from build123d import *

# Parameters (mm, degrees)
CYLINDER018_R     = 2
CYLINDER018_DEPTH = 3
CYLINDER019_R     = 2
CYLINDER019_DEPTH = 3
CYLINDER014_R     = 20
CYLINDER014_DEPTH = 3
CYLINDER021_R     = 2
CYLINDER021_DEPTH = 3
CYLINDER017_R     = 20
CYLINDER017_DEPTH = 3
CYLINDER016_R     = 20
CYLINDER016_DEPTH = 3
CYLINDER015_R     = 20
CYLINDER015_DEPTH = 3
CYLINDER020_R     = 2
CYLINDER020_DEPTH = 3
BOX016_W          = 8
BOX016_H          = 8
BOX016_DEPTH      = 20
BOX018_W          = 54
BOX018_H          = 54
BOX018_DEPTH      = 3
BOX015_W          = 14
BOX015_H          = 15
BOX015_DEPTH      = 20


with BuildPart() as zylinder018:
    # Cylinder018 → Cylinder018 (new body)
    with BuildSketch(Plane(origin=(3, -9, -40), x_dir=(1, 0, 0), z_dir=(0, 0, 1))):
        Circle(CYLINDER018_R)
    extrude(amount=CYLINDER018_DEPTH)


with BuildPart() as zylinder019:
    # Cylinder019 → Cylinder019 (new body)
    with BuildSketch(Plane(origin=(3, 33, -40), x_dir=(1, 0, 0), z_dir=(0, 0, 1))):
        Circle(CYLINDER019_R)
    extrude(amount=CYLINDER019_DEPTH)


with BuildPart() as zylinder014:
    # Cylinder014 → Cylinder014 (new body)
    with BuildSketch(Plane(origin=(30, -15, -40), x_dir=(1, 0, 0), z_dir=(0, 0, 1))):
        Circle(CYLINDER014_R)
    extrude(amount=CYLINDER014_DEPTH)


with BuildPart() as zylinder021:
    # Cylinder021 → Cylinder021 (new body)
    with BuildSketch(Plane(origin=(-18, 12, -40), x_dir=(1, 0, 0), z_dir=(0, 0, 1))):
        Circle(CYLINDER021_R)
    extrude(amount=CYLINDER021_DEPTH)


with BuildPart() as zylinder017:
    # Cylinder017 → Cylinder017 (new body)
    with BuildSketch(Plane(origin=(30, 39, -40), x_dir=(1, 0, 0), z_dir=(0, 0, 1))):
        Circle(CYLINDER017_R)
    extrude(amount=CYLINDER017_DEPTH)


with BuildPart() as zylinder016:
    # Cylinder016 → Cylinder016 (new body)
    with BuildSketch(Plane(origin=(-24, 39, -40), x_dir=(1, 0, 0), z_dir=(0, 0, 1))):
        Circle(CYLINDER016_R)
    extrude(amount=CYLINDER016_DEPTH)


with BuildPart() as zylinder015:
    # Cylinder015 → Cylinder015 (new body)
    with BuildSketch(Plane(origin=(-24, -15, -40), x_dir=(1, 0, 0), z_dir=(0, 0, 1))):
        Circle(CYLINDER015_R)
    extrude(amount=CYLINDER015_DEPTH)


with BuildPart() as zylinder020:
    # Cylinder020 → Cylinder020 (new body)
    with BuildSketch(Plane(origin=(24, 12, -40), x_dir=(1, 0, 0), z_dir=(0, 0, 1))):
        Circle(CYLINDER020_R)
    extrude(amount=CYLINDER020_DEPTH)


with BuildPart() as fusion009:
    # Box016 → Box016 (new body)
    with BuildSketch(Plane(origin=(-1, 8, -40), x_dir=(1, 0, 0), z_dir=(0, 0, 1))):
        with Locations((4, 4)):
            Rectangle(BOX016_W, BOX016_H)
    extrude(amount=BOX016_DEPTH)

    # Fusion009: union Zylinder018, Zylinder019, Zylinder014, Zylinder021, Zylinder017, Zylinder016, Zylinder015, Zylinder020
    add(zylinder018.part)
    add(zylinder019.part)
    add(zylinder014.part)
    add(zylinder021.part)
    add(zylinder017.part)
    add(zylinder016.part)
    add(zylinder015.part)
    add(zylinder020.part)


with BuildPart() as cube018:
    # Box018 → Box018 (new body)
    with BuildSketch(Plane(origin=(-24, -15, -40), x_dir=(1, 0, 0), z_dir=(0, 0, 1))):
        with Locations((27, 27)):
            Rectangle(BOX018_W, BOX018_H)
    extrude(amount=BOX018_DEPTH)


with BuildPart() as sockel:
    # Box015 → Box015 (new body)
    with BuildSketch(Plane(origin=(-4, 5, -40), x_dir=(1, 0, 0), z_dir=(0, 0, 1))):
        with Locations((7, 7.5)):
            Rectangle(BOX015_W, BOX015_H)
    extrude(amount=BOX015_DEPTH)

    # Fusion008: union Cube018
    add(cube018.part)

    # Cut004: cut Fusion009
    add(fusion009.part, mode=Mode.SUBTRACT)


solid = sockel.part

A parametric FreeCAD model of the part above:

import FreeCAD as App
import Part
import Sketcher
from FreeCAD import Vector

doc = App.newDocument("Part")
body = doc.addObject("PartDesign::Body", "Body")

sketch1 = doc.addObject("Sketcher::SketchObject", "Sketch")
body.addObject(sketch1)
sketch1.AttachmentSupport = (doc.XY_Plane, [""])
sketch1.MapMode = "FlatFace"
sketch1.AttachmentOffset = App.Placement(Vector(0, 0, -40), App.Rotation())
sketch1.addGeometry(Part.Circle(Vector(3, -9, 0), Vector(0, 0, 1), 2), False)
sketch1.addConstraint([
    Sketcher.Constraint("Diameter", 0, 4.0),
    Sketcher.Constraint("DistanceX", -1, 1, 0, 3, 3.0),
    Sketcher.Constraint("DistanceY", 0, 3, -1, 1, 9.0),
])
pad1 = doc.addObject("PartDesign::Pad", "Pad")
body.addObject(pad1)
pad1.Profile = sketch1
pad1.Length = 3
body2 = doc.addObject("PartDesign::Body", "Body001")

sketch2 = doc.addObject("Sketcher::SketchObject", "Sketch001")
body2.addObject(sketch2)
sketch2.AttachmentSupport = (doc.getObject("XY_Plane001"), [""])
sketch2.MapMode = "FlatFace"
sketch2.AttachmentOffset = App.Placement(Vector(0, 0, -40), App.Rotation())
sketch2.addGeometry(Part.Circle(Vector(3, 33, 0), Vector(0, 0, 1), 2), False)
sketch2.addConstraint([
    Sketcher.Constraint("Diameter", 0, 4.0),
    Sketcher.Constraint("DistanceX", -1, 1, 0, 3, 3.0),
    Sketcher.Constraint("DistanceY", -1, 1, 0, 3, 33.0),
])
pad2 = doc.addObject("PartDesign::Pad", "Pad001")
body2.addObject(pad2)
pad2.Profile = sketch2
pad2.Length = 3
body3 = doc.addObject("PartDesign::Body", "Body002")

sketch3 = doc.addObject("Sketcher::SketchObject", "Sketch002")
body3.addObject(sketch3)
sketch3.AttachmentSupport = (doc.getObject("XY_Plane002"), [""])
sketch3.MapMode = "FlatFace"
sketch3.AttachmentOffset = App.Placement(Vector(0, 0, -40), App.Rotation())
sketch3.addGeometry(Part.Circle(Vector(30, -15, 0), Vector(0, 0, 1), 20), False)
sketch3.addConstraint([
    Sketcher.Constraint("Diameter", 0, 40.0),
    Sketcher.Constraint("DistanceX", -1, 1, 0, 3, 30.0),
    Sketcher.Constraint("DistanceY", 0, 3, -1, 1, 15.0),
])
pad3 = doc.addObject("PartDesign::Pad", "Pad002")
body3.addObject(pad3)
pad3.Profile = sketch3
pad3.Length = 3
body4 = doc.addObject("PartDesign::Body", "Body003")

sketch4 = doc.addObject("Sketcher::SketchObject", "Sketch003")
body4.addObject(sketch4)
sketch4.AttachmentSupport = (doc.getObject("XY_Plane003"), [""])
sketch4.MapMode = "FlatFace"
sketch4.AttachmentOffset = App.Placement(Vector(0, 0, -40), App.Rotation())
sketch4.addGeometry(Part.Circle(Vector(-18, 12, 0), Vector(0, 0, 1), 2), False)
sketch4.addConstraint([
    Sketcher.Constraint("Diameter", 0, 4.0),
    Sketcher.Constraint("DistanceX", 0, 3, -1, 1, 18.0),
    Sketcher.Constraint("DistanceY", -1, 1, 0, 3, 12.0),
])
pad4 = doc.addObject("PartDesign::Pad", "Pad003")
body4.addObject(pad4)
pad4.Profile = sketch4
pad4.Length = 3
body5 = doc.addObject("PartDesign::Body", "Body004")

sketch5 = doc.addObject("Sketcher::SketchObject", "Sketch004")
body5.addObject(sketch5)
sketch5.AttachmentSupport = (doc.getObject("XY_Plane004"), [""])
sketch5.MapMode = "FlatFace"
sketch5.AttachmentOffset = App.Placement(Vector(0, 0, -40), App.Rotation())
sketch5.addGeometry(Part.Circle(Vector(30, 39, 0), Vector(0, 0, 1), 20), False)
sketch5.addConstraint([
    Sketcher.Constraint("Diameter", 0, 40.0),
    Sketcher.Constraint("DistanceX", -1, 1, 0, 3, 30.0),
    Sketcher.Constraint("DistanceY", -1, 1, 0, 3, 39.0),
])
pad5 = doc.addObject("PartDesign::Pad", "Pad004")
body5.addObject(pad5)
pad5.Profile = sketch5
pad5.Length = 3
body6 = doc.addObject("PartDesign::Body", "Body005")

sketch6 = doc.addObject("Sketcher::SketchObject", "Sketch005")
body6.addObject(sketch6)
sketch6.AttachmentSupport = (doc.getObject("XY_Plane005"), [""])
sketch6.MapMode = "FlatFace"
sketch6.AttachmentOffset = App.Placement(Vector(0, 0, -40), App.Rotation())
sketch6.addGeometry(Part.Circle(Vector(-24, 39, 0), Vector(0, 0, 1), 20), False)
sketch6.addConstraint([
    Sketcher.Constraint("Diameter", 0, 40.0),
    Sketcher.Constraint("DistanceX", 0, 3, -1, 1, 24.0),
    Sketcher.Constraint("DistanceY", -1, 1, 0, 3, 39.0),
])
pad6 = doc.addObject("PartDesign::Pad", "Pad005")
body6.addObject(pad6)
pad6.Profile = sketch6
pad6.Length = 3
body7 = doc.addObject("PartDesign::Body", "Body006")

sketch7 = doc.addObject("Sketcher::SketchObject", "Sketch006")
body7.addObject(sketch7)
sketch7.AttachmentSupport = (doc.getObject("XY_Plane006"), [""])
sketch7.MapMode = "FlatFace"
sketch7.AttachmentOffset = App.Placement(Vector(0, 0, -40), App.Rotation())
sketch7.addGeometry(Part.Circle(Vector(-24, -15, 0), Vector(0, 0, 1), 20), False)
sketch7.addConstraint([
    Sketcher.Constraint("Diameter", 0, 40.0),
    Sketcher.Constraint("DistanceX", 0, 3, -1, 1, 24.0),
    Sketcher.Constraint("DistanceY", 0, 3, -1, 1, 15.0),
])
pad7 = doc.addObject("PartDesign::Pad", "Pad006")
body7.addObject(pad7)
pad7.Profile = sketch7
pad7.Length = 3
body8 = doc.addObject("PartDesign::Body", "Body007")

sketch8 = doc.addObject("Sketcher::SketchObject", "Sketch007")
body8.addObject(sketch8)
sketch8.AttachmentSupport = (doc.getObject("XY_Plane007"), [""])
sketch8.MapMode = "FlatFace"
sketch8.AttachmentOffset = App.Placement(Vector(0, 0, -40), App.Rotation())
sketch8.addGeometry(Part.Circle(Vector(24, 12, 0), Vector(0, 0, 1), 2), False)
sketch8.addConstraint([
    Sketcher.Constraint("Diameter", 0, 4.0),
    Sketcher.Constraint("DistanceX", -1, 1, 0, 3, 24.0),
    Sketcher.Constraint("DistanceY", -1, 1, 0, 3, 12.0),
])
pad8 = doc.addObject("PartDesign::Pad", "Pad007")
body8.addObject(pad8)
pad8.Profile = sketch8
pad8.Length = 3
body9 = doc.addObject("PartDesign::Body", "Body008")
body9.AllowCompound = True

sketch9 = doc.addObject("Sketcher::SketchObject", "Sketch008")
body9.addObject(sketch9)
sketch9.AttachmentSupport = (doc.getObject("XY_Plane008"), [""])
sketch9.MapMode = "FlatFace"
sketch9.AttachmentOffset = App.Placement(Vector(0, 0, -40), App.Rotation())
sketch9.addGeometry([
    Part.LineSegment(Vector(-1, 16, 0), Vector(-1, 8, 0)),
    Part.LineSegment(Vector(-1, 8, 0), Vector(7, 8, 0)),
    Part.LineSegment(Vector(7, 8, 0), Vector(7, 16, 0)),
    Part.LineSegment(Vector(7, 16, 0), Vector(-1, 16, 0)),
], False)
sketch9.addConstraint([
    Sketcher.Constraint("Coincident", 0, 2, 1, 1),
    Sketcher.Constraint("Coincident", 1, 2, 2, 1),
    Sketcher.Constraint("Coincident", 2, 2, 3, 1),
    Sketcher.Constraint("Coincident", 3, 2, 0, 1),
    Sketcher.Constraint("Vertical", 0),
    Sketcher.Constraint("Horizontal", 1),
    Sketcher.Constraint("Vertical", 2),
    Sketcher.Constraint("Horizontal", 3),
    Sketcher.Constraint("Equal", 3, 0),
    Sketcher.Constraint("DistanceX", 1, 1, 1, 2, 8.0),
    Sketcher.Constraint("DistanceX", 0, 2, -1, 1, 1.0),
    Sketcher.Constraint("DistanceY", -1, 1, 0, 2, 8.0),
])
pad9 = doc.addObject("PartDesign::Pad", "Pad008")
body9.addObject(pad9)
pad9.Profile = sketch9
pad9.Length = 20
doc.recompute()

boolean = doc.addObject("PartDesign::Boolean", "Boolean")
body9.addObject(boolean)
boolean.Type = "Fuse"
boolean.addObjects([body])
doc.recompute()

boolean2 = doc.addObject("PartDesign::Boolean", "Boolean001")
body9.addObject(boolean2)
boolean2.Type = "Fuse"
boolean2.addObjects([body2])
doc.recompute()

boolean3 = doc.addObject("PartDesign::Boolean", "Boolean002")
body9.addObject(boolean3)
boolean3.Type = "Fuse"
boolean3.addObjects([body3])
doc.recompute()

boolean4 = doc.addObject("PartDesign::Boolean", "Boolean003")
body9.addObject(boolean4)
boolean4.Type = "Fuse"
boolean4.addObjects([body4])
doc.recompute()

boolean5 = doc.addObject("PartDesign::Boolean", "Boolean004")
body9.addObject(boolean5)
boolean5.Type = "Fuse"
boolean5.addObjects([body5])
doc.recompute()

boolean6 = doc.addObject("PartDesign::Boolean", "Boolean005")
body9.addObject(boolean6)
boolean6.Type = "Fuse"
boolean6.addObjects([body6])
doc.recompute()

boolean7 = doc.addObject("PartDesign::Boolean", "Boolean006")
body9.addObject(boolean7)
boolean7.Type = "Fuse"
boolean7.addObjects([body7])
doc.recompute()

boolean8 = doc.addObject("PartDesign::Boolean", "Boolean007")
body9.addObject(boolean8)
boolean8.Type = "Fuse"
boolean8.addObjects([body8])
body10 = doc.addObject("PartDesign::Body", "Body009")

sketch10 = doc.addObject("Sketcher::SketchObject", "Sketch009")
body10.addObject(sketch10)
sketch10.AttachmentSupport = (doc.getObject("XY_Plane009"), [""])
sketch10.MapMode = "FlatFace"
sketch10.AttachmentOffset = App.Placement(Vector(0, 0, -40), App.Rotation())
sketch10.addGeometry([
    Part.LineSegment(Vector(-24, 39, 0), Vector(-24, -15, 0)),
    Part.LineSegment(Vector(-24, -15, 0), Vector(30, -15, 0)),
    Part.LineSegment(Vector(30, -15, 0), Vector(30, 39, 0)),
    Part.LineSegment(Vector(30, 39, 0), Vector(-24, 39, 0)),
], False)
sketch10.addConstraint([
    Sketcher.Constraint("Coincident", 0, 2, 1, 1),
    Sketcher.Constraint("Coincident", 1, 2, 2, 1),
    Sketcher.Constraint("Coincident", 2, 2, 3, 1),
    Sketcher.Constraint("Coincident", 3, 2, 0, 1),
    Sketcher.Constraint("Vertical", 0),
    Sketcher.Constraint("Horizontal", 1),
    Sketcher.Constraint("Vertical", 2),
    Sketcher.Constraint("Horizontal", 3),
    Sketcher.Constraint("Equal", 3, 0),
    Sketcher.Constraint("DistanceX", 1, 1, 1, 2, 54.0),
    Sketcher.Constraint("DistanceX", 0, 2, -1, 1, 24.0),
    Sketcher.Constraint("DistanceY", 0, 2, -1, 1, 15.0),
])
pad10 = doc.addObject("PartDesign::Pad", "Pad009")
body10.addObject(pad10)
pad10.Profile = sketch10
pad10.Length = 3
body11 = doc.addObject("PartDesign::Body", "Body010")

sketch11 = doc.addObject("Sketcher::SketchObject", "Sketch010")
body11.addObject(sketch11)
sketch11.AttachmentSupport = (doc.getObject("XY_Plane010"), [""])
sketch11.MapMode = "FlatFace"
sketch11.AttachmentOffset = App.Placement(Vector(0, 0, -40), App.Rotation())
sketch11.addGeometry([
    Part.LineSegment(Vector(-4, 20, 0), Vector(-4, 5, 0)),
    Part.LineSegment(Vector(-4, 5, 0), Vector(10, 5, 0)),
    Part.LineSegment(Vector(10, 5, 0), Vector(10, 20, 0)),
    Part.LineSegment(Vector(10, 20, 0), Vector(-4, 20, 0)),
], False)
sketch11.addConstraint([
    Sketcher.Constraint("Coincident", 0, 2, 1, 1),
    Sketcher.Constraint("Coincident", 1, 2, 2, 1),
    Sketcher.Constraint("Coincident", 2, 2, 3, 1),
    Sketcher.Constraint("Coincident", 3, 2, 0, 1),
    Sketcher.Constraint("Vertical", 0),
    Sketcher.Constraint("Horizontal", 1),
    Sketcher.Constraint("Vertical", 2),
    Sketcher.Constraint("Horizontal", 3),
    Sketcher.Constraint("DistanceX", 1, 1, 1, 2, 14.0),
    Sketcher.Constraint("DistanceY", 0, 2, 0, 1, 15.0),
    Sketcher.Constraint("DistanceX", 0, 2, -1, 1, 4.0),
    Sketcher.Constraint("DistanceY", -1, 1, 0, 2, 5.0),
])
pad11 = doc.addObject("PartDesign::Pad", "Pad010")
body11.addObject(pad11)
pad11.Profile = sketch11
pad11.Length = 20
doc.recompute()

boolean9 = doc.addObject("PartDesign::Boolean", "Boolean008")
body11.addObject(boolean9)
boolean9.Type = "Fuse"
boolean9.addObjects([body10])
doc.recompute()

boolean10 = doc.addObject("PartDesign::Boolean", "Boolean009")
body11.addObject(boolean10)
boolean10.Type = "Cut"
boolean10.addObjects([body9])

doc.recompute()
